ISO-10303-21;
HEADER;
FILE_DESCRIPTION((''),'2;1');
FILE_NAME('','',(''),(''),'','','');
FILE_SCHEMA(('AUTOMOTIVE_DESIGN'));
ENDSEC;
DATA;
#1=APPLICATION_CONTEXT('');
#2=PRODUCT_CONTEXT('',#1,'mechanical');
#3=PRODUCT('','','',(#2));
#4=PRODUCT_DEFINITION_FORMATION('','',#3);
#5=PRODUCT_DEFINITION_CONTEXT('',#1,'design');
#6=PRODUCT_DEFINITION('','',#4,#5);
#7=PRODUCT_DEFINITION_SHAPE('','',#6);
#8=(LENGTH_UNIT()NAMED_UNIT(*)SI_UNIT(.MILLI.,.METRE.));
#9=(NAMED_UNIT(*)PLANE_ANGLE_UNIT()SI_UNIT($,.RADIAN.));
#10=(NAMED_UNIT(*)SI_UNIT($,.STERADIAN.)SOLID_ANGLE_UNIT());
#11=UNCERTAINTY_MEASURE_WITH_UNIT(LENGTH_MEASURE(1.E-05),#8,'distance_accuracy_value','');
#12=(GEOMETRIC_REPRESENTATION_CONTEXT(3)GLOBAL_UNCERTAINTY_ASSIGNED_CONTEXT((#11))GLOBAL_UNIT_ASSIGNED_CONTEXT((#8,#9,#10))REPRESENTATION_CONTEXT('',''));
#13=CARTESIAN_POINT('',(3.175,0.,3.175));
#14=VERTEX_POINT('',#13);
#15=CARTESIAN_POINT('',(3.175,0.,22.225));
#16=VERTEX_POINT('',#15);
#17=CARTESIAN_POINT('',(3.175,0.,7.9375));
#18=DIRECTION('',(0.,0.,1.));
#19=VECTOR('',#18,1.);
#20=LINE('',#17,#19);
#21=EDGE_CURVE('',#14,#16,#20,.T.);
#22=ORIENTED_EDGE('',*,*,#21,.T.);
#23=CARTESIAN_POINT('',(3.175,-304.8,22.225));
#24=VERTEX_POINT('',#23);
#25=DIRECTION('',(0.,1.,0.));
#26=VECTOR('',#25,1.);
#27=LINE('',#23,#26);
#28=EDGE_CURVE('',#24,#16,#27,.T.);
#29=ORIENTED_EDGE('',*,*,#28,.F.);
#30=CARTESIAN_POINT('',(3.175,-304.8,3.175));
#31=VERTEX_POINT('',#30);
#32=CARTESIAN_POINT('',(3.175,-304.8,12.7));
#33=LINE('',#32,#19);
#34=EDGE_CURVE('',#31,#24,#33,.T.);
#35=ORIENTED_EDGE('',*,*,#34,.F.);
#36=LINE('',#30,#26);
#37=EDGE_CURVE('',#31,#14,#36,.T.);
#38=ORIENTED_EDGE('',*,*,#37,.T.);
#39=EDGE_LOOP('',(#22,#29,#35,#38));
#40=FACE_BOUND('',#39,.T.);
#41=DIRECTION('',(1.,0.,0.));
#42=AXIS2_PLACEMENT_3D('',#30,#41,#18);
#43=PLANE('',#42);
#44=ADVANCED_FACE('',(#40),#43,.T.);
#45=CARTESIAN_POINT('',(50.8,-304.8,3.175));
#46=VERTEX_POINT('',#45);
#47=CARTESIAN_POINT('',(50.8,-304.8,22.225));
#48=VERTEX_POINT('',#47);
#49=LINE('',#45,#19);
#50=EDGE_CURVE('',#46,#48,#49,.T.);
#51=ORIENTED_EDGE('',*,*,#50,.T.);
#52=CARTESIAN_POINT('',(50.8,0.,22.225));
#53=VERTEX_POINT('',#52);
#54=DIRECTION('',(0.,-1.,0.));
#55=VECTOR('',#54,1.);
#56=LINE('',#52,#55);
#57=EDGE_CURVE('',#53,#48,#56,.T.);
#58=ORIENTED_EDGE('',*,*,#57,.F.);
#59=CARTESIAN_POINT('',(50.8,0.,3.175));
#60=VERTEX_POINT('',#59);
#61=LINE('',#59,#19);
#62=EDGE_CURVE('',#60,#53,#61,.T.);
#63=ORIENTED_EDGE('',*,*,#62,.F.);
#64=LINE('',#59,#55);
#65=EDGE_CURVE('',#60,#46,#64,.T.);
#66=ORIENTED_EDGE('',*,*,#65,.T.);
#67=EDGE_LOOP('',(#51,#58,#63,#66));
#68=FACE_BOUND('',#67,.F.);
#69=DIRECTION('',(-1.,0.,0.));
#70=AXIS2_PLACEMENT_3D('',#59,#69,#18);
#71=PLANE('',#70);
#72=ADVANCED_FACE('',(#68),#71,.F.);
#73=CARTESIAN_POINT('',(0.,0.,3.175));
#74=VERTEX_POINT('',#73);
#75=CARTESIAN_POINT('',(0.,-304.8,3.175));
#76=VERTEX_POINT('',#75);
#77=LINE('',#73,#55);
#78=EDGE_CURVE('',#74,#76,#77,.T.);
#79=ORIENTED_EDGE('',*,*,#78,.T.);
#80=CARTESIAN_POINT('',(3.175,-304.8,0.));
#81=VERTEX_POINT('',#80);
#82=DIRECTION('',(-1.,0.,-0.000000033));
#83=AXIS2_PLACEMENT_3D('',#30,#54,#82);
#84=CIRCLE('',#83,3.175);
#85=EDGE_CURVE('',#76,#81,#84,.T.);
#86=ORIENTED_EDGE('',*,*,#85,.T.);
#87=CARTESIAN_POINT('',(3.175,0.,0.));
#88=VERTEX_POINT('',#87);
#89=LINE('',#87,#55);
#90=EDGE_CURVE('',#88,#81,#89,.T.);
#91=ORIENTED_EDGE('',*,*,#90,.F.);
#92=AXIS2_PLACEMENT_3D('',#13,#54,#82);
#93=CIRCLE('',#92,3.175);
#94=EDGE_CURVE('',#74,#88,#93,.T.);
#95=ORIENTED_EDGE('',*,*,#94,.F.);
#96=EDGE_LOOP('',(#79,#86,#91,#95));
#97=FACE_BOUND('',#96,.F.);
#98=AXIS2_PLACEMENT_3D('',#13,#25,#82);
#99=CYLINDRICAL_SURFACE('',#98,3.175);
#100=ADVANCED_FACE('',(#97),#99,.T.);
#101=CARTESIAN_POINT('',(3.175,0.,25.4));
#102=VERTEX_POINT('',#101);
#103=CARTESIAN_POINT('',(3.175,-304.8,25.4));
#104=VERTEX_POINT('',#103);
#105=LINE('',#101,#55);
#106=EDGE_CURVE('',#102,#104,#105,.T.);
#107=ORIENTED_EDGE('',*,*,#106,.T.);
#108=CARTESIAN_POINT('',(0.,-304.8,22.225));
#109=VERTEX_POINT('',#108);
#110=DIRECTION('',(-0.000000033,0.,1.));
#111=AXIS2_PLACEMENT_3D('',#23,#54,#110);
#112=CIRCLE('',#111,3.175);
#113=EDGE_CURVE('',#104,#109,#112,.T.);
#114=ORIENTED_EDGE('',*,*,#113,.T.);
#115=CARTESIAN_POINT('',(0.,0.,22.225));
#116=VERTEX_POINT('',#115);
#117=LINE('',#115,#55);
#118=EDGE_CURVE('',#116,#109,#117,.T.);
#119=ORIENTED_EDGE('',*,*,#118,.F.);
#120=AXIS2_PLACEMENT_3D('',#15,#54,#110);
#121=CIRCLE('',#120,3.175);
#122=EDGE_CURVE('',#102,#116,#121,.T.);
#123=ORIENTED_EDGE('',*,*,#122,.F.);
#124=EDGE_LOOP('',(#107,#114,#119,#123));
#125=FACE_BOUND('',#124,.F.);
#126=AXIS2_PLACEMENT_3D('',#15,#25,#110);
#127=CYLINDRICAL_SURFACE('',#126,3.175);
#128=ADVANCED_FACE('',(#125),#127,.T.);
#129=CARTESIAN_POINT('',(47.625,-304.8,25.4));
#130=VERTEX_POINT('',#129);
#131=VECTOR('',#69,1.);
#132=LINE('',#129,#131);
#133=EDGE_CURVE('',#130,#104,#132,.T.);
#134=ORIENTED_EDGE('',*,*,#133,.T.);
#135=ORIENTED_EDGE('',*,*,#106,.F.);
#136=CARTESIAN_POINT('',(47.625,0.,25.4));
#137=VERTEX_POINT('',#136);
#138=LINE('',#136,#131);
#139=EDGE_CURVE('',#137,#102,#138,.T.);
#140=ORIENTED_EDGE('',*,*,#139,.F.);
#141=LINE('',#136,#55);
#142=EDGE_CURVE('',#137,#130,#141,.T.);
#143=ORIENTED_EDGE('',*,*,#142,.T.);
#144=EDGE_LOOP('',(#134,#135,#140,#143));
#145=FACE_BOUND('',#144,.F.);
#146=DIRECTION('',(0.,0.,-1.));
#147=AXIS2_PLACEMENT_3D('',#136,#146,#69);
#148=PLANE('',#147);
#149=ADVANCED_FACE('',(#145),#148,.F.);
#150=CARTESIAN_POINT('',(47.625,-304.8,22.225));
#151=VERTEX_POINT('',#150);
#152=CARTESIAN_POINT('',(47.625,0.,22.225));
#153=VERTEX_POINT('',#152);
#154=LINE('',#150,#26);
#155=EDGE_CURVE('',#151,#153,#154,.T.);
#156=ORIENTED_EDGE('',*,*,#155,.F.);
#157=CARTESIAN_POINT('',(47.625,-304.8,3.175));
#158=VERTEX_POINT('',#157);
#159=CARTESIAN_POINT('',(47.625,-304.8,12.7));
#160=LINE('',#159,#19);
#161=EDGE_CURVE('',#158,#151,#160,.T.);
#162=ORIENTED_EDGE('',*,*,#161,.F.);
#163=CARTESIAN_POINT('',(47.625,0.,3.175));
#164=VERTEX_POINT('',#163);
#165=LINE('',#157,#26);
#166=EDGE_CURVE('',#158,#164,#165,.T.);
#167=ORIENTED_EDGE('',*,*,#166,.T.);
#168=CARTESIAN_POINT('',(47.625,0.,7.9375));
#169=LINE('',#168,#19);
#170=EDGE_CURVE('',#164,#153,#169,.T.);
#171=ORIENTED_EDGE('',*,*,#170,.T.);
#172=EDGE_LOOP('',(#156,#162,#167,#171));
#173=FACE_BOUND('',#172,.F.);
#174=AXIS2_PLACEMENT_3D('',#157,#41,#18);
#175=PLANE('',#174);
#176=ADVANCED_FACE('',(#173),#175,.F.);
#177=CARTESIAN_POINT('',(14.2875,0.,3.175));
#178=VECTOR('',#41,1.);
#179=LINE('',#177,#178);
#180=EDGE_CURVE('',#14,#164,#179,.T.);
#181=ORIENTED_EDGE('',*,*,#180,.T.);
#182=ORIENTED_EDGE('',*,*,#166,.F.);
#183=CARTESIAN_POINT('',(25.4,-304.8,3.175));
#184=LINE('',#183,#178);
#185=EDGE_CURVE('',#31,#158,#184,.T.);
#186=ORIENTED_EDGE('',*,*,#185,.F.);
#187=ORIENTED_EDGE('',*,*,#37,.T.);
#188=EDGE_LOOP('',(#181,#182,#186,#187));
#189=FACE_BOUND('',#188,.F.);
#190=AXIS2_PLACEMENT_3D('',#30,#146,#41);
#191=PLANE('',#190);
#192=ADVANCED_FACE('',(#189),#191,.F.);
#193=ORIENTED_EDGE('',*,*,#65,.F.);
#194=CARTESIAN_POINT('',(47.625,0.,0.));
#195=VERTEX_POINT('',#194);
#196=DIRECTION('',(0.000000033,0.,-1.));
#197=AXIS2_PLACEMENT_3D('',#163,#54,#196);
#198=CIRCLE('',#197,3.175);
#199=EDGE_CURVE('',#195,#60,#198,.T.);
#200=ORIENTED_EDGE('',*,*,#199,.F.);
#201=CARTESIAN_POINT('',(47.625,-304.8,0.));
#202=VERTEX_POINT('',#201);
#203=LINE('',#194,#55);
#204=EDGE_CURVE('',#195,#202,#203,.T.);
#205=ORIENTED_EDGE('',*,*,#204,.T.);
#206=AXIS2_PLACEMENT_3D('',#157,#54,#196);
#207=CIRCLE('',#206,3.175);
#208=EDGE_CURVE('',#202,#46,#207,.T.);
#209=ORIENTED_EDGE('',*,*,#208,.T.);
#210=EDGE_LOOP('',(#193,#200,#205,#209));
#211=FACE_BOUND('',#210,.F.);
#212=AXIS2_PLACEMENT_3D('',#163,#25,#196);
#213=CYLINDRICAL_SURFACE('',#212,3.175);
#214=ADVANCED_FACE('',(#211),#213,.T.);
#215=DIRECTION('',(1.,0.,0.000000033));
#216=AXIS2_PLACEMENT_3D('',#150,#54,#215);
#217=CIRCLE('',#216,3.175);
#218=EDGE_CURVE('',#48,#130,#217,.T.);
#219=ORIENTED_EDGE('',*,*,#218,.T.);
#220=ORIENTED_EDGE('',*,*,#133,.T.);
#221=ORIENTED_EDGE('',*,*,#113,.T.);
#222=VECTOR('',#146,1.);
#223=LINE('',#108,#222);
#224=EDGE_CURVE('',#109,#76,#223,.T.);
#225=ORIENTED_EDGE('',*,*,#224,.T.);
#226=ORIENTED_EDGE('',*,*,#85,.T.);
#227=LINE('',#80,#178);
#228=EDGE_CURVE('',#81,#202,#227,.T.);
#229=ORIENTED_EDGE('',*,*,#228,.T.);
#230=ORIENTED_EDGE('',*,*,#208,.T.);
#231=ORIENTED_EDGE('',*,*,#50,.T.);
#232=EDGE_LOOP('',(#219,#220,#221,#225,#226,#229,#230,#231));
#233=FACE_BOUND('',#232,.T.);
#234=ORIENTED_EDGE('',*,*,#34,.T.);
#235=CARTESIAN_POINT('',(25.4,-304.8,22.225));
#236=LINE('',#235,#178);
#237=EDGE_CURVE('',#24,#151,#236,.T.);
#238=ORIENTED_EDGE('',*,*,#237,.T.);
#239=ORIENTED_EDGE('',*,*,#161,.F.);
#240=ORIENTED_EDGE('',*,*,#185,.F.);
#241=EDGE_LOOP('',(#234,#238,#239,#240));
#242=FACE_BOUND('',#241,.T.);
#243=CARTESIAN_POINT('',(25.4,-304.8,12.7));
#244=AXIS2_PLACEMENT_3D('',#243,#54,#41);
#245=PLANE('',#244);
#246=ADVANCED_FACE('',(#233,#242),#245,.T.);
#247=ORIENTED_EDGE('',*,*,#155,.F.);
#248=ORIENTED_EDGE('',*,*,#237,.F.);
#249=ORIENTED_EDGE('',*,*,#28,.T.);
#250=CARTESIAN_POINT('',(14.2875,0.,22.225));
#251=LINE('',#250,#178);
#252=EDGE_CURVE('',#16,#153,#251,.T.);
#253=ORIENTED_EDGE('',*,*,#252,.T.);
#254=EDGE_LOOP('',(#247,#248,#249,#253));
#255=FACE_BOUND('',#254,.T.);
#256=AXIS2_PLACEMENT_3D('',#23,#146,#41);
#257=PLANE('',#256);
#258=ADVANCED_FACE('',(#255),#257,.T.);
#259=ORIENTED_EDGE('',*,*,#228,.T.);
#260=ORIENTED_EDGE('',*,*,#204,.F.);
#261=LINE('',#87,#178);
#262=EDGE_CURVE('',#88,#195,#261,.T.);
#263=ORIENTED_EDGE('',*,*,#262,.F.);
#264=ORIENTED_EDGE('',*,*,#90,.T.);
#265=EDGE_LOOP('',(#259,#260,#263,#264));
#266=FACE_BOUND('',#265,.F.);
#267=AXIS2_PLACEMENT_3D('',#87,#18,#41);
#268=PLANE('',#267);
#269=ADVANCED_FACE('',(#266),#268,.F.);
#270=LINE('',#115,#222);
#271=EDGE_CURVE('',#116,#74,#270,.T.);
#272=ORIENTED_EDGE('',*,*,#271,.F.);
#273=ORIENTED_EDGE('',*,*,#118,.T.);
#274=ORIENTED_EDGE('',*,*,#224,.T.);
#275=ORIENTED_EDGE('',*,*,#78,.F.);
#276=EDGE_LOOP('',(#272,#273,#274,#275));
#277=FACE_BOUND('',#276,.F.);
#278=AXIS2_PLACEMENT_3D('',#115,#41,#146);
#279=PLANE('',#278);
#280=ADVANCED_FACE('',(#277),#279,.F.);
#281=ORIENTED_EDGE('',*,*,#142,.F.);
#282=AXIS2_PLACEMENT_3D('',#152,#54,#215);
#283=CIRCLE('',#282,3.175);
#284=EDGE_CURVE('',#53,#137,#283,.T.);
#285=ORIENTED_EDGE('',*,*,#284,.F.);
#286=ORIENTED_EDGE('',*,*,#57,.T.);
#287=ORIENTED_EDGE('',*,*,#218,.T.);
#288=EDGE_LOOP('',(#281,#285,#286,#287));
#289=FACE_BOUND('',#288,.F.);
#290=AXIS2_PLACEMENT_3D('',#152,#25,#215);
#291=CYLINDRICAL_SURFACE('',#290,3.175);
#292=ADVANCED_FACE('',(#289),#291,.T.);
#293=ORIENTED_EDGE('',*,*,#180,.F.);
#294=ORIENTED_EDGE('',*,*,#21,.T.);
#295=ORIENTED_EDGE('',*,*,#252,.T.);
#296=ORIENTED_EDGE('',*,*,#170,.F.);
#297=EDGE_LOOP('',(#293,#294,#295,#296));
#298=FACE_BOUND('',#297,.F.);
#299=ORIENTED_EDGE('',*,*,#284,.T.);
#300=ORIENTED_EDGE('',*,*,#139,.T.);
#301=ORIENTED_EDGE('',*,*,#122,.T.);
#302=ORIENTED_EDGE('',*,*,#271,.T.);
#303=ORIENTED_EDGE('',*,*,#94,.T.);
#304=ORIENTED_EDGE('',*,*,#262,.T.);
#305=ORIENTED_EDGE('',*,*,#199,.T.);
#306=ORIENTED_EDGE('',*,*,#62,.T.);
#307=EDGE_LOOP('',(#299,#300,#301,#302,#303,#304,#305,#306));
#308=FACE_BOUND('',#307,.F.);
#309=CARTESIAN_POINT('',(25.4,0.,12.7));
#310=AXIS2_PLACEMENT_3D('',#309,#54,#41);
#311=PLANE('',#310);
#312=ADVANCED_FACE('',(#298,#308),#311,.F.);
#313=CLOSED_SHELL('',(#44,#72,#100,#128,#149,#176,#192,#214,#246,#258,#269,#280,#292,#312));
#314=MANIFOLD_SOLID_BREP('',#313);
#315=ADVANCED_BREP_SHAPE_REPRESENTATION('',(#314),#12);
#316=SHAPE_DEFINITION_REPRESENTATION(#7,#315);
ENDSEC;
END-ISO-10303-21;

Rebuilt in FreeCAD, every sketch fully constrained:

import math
import FreeCAD as App
import Part
import Sketcher
Q = App.Units.Quantity

doc = App.newDocument("Part")
body = doc.addObject("PartDesign::Body", "Body")

# Sketch on XZ plane
sketch1 = doc.addObject("Sketcher::SketchObject", "Sketch")
body.addObject(sketch1)
sketch1.AttachmentSupport = (doc.XZ_Plane, [""])
sketch1.MapMode = "FlatFace"
sketch1.addGeometry(Part.ArcOfCircle(Part.Circle(App.Vector(3.2, 3.2, 0), App.Vector(0, 0, 1), 3.2), math.radians(-180), math.radians(-90)), False)
sketch1.addGeometry(Part.LineSegment(App.Vector(3.2, 0, 0), App.Vector(47.6, 0, 0)), False)
sketch1.addGeometry(Part.ArcOfCircle(Part.Circle(App.Vector(47.6, 3.2, 0), App.Vector(0, 0, 1), 3.2), math.radians(-90), math.radians(0)), False)
sketch1.addGeometry(Part.LineSegment(App.Vector(50.8, 3.2, 0), App.Vector(50.8, 22.2, 0)), False)
sketch1.addGeometry(Part.ArcOfCircle(Part.Circle(App.Vector(47.6, 22.2, 0), App.Vector(0, 0, 1), 3.2), math.radians(0), math.radians(90)), False)
sketch1.addGeometry(Part.LineSegment(App.Vector(47.6, 25.4, 0), App.Vector(3.2, 25.4, 0)), False)
sketch1.addGeometry(Part.ArcOfCircle(Part.Circle(App.Vector(3.2, 22.2, 0), App.Vector(0, 0, 1), 3.2), math.radians(90), math.radians(180)), False)
sketch1.addGeometry(Part.LineSegment(App.Vector(0, 22.2, 0), App.Vector(0, 3.2, 0)), False)
sketch1.addConstraint(Sketcher.Constraint("Tangent", 0, 2, 1, 1))
sketch1.addConstraint(Sketcher.Constraint("Tangent", 1, 2, 2, 1))
sketch1.addConstraint(Sketcher.Constraint("Tangent", 2, 2, 3, 1))
sketch1.addConstraint(Sketcher.Constraint("Tangent", 3, 2, 4, 1))
sketch1.addConstraint(Sketcher.Constraint("Tangent", 4, 2, 5, 1))
sketch1.addConstraint(Sketcher.Constraint("Tangent", 5, 2, 6, 1))
sketch1.addConstraint(Sketcher.Constraint("Tangent", 6, 2, 7, 1))
sketch1.addConstraint(Sketcher.Constraint("Tangent", 7, 2, 0, 1))
sketch1.addConstraint(Sketcher.Constraint("Horizontal", 1))
sketch1.addConstraint(Sketcher.Constraint("Vertical", 3))
sketch1.addConstraint(Sketcher.Constraint("Horizontal", 5))
sketch1.addConstraint(Sketcher.Constraint("Vertical", 7))
sketch1.addConstraint(Sketcher.Constraint("Equal", 0, 2))
sketch1.addConstraint(Sketcher.Constraint("Equal", 2, 4))
sketch1.addConstraint(Sketcher.Constraint("Equal", 4, 6))
sketch1.addConstraint(Sketcher.Constraint("PointOnObject", 0, 2, -1))
sketch1.addConstraint(Sketcher.Constraint("PointOnObject", 6, 2, -2))
sketch1.addConstraint(Sketcher.Constraint("DistanceX", -1, 1, 2, 2, Q("2 in")))
sketch1.addConstraint(Sketcher.Constraint("DistanceY", -1, 1, 4, 2, Q("1 in")))
sketch1.addConstraint(Sketcher.Constraint("Radius", 0, Q("0.125 in")))
pad1 = doc.addObject("PartDesign::Pad", "Pad")
body.addObject(pad1)
pad1.Profile = sketch1
pad1.Length = Q("12 in")

# Sketch on XZ plane
sketch2 = doc.addObject("Sketcher::SketchObject", "Sketch001")
body.addObject(sketch2)
sketch2.AttachmentSupport = (doc.XZ_Plane, [""])
sketch2.MapMode = "FlatFace"
sketch2.AttachmentOffset = App.Placement(App.Vector(0, 0, 12 * 25.4), App.Rotation())
sketch2.addGeometry(Part.LineSegment(App.Vector(3, 22, 0), App.Vector(3, 3, 0)), False)
sketch2.addGeometry(Part.LineSegment(App.Vector(3, 3, 0), App.Vector(48, 3, 0)), False)
sketch2.addGeometry(Part.LineSegment(App.Vector(48, 3, 0), App.Vector(48, 22, 0)), False)
sketch2.addGeometry(Part.LineSegment(App.Vector(48, 22, 0), App.Vector(3, 22, 0)), False)
sketch2.addConstraint(Sketcher.Constraint("Coincident", 0, 2, 1, 1))
sketch2.addConstraint(Sketcher.Constraint("Coincident", 1, 2, 2, 1))
sketch2.addConstraint(Sketcher.Constraint("Coincident", 2, 2, 3, 1))
sketch2.addConstraint(Sketcher.Constraint("Coincident", 3, 2, 0, 1))
sketch2.addConstraint(Sketcher.Constraint("Vertical", 0))
sketch2.addConstraint(Sketcher.Constraint("Horizontal", 1))
sketch2.addConstraint(Sketcher.Constraint("Vertical", 2))
sketch2.addConstraint(Sketcher.Constraint("Horizontal", 3))
sketch2.addConstraint(Sketcher.Constraint("DistanceX", 1, 1, 1, 2, Q("1.75 in")))
sketch2.addConstraint(Sketcher.Constraint("DistanceY", 0, 2, 0, 1, Q("0.75 in")))
sketch2.addConstraint(Sketcher.Constraint("DistanceX", -1, 1, 0, 2, Q("0.125 in")))
sketch2.addConstraint(Sketcher.Constraint("DistanceY", -1, 1, 0, 2, Q("0.125 in")))
pocket1 = doc.addObject("PartDesign::Pocket", "Pocket")
body.addObject(pocket1)
pocket1.Profile = sketch2
pocket1.Type = "ThroughAll"

doc.recompute()
